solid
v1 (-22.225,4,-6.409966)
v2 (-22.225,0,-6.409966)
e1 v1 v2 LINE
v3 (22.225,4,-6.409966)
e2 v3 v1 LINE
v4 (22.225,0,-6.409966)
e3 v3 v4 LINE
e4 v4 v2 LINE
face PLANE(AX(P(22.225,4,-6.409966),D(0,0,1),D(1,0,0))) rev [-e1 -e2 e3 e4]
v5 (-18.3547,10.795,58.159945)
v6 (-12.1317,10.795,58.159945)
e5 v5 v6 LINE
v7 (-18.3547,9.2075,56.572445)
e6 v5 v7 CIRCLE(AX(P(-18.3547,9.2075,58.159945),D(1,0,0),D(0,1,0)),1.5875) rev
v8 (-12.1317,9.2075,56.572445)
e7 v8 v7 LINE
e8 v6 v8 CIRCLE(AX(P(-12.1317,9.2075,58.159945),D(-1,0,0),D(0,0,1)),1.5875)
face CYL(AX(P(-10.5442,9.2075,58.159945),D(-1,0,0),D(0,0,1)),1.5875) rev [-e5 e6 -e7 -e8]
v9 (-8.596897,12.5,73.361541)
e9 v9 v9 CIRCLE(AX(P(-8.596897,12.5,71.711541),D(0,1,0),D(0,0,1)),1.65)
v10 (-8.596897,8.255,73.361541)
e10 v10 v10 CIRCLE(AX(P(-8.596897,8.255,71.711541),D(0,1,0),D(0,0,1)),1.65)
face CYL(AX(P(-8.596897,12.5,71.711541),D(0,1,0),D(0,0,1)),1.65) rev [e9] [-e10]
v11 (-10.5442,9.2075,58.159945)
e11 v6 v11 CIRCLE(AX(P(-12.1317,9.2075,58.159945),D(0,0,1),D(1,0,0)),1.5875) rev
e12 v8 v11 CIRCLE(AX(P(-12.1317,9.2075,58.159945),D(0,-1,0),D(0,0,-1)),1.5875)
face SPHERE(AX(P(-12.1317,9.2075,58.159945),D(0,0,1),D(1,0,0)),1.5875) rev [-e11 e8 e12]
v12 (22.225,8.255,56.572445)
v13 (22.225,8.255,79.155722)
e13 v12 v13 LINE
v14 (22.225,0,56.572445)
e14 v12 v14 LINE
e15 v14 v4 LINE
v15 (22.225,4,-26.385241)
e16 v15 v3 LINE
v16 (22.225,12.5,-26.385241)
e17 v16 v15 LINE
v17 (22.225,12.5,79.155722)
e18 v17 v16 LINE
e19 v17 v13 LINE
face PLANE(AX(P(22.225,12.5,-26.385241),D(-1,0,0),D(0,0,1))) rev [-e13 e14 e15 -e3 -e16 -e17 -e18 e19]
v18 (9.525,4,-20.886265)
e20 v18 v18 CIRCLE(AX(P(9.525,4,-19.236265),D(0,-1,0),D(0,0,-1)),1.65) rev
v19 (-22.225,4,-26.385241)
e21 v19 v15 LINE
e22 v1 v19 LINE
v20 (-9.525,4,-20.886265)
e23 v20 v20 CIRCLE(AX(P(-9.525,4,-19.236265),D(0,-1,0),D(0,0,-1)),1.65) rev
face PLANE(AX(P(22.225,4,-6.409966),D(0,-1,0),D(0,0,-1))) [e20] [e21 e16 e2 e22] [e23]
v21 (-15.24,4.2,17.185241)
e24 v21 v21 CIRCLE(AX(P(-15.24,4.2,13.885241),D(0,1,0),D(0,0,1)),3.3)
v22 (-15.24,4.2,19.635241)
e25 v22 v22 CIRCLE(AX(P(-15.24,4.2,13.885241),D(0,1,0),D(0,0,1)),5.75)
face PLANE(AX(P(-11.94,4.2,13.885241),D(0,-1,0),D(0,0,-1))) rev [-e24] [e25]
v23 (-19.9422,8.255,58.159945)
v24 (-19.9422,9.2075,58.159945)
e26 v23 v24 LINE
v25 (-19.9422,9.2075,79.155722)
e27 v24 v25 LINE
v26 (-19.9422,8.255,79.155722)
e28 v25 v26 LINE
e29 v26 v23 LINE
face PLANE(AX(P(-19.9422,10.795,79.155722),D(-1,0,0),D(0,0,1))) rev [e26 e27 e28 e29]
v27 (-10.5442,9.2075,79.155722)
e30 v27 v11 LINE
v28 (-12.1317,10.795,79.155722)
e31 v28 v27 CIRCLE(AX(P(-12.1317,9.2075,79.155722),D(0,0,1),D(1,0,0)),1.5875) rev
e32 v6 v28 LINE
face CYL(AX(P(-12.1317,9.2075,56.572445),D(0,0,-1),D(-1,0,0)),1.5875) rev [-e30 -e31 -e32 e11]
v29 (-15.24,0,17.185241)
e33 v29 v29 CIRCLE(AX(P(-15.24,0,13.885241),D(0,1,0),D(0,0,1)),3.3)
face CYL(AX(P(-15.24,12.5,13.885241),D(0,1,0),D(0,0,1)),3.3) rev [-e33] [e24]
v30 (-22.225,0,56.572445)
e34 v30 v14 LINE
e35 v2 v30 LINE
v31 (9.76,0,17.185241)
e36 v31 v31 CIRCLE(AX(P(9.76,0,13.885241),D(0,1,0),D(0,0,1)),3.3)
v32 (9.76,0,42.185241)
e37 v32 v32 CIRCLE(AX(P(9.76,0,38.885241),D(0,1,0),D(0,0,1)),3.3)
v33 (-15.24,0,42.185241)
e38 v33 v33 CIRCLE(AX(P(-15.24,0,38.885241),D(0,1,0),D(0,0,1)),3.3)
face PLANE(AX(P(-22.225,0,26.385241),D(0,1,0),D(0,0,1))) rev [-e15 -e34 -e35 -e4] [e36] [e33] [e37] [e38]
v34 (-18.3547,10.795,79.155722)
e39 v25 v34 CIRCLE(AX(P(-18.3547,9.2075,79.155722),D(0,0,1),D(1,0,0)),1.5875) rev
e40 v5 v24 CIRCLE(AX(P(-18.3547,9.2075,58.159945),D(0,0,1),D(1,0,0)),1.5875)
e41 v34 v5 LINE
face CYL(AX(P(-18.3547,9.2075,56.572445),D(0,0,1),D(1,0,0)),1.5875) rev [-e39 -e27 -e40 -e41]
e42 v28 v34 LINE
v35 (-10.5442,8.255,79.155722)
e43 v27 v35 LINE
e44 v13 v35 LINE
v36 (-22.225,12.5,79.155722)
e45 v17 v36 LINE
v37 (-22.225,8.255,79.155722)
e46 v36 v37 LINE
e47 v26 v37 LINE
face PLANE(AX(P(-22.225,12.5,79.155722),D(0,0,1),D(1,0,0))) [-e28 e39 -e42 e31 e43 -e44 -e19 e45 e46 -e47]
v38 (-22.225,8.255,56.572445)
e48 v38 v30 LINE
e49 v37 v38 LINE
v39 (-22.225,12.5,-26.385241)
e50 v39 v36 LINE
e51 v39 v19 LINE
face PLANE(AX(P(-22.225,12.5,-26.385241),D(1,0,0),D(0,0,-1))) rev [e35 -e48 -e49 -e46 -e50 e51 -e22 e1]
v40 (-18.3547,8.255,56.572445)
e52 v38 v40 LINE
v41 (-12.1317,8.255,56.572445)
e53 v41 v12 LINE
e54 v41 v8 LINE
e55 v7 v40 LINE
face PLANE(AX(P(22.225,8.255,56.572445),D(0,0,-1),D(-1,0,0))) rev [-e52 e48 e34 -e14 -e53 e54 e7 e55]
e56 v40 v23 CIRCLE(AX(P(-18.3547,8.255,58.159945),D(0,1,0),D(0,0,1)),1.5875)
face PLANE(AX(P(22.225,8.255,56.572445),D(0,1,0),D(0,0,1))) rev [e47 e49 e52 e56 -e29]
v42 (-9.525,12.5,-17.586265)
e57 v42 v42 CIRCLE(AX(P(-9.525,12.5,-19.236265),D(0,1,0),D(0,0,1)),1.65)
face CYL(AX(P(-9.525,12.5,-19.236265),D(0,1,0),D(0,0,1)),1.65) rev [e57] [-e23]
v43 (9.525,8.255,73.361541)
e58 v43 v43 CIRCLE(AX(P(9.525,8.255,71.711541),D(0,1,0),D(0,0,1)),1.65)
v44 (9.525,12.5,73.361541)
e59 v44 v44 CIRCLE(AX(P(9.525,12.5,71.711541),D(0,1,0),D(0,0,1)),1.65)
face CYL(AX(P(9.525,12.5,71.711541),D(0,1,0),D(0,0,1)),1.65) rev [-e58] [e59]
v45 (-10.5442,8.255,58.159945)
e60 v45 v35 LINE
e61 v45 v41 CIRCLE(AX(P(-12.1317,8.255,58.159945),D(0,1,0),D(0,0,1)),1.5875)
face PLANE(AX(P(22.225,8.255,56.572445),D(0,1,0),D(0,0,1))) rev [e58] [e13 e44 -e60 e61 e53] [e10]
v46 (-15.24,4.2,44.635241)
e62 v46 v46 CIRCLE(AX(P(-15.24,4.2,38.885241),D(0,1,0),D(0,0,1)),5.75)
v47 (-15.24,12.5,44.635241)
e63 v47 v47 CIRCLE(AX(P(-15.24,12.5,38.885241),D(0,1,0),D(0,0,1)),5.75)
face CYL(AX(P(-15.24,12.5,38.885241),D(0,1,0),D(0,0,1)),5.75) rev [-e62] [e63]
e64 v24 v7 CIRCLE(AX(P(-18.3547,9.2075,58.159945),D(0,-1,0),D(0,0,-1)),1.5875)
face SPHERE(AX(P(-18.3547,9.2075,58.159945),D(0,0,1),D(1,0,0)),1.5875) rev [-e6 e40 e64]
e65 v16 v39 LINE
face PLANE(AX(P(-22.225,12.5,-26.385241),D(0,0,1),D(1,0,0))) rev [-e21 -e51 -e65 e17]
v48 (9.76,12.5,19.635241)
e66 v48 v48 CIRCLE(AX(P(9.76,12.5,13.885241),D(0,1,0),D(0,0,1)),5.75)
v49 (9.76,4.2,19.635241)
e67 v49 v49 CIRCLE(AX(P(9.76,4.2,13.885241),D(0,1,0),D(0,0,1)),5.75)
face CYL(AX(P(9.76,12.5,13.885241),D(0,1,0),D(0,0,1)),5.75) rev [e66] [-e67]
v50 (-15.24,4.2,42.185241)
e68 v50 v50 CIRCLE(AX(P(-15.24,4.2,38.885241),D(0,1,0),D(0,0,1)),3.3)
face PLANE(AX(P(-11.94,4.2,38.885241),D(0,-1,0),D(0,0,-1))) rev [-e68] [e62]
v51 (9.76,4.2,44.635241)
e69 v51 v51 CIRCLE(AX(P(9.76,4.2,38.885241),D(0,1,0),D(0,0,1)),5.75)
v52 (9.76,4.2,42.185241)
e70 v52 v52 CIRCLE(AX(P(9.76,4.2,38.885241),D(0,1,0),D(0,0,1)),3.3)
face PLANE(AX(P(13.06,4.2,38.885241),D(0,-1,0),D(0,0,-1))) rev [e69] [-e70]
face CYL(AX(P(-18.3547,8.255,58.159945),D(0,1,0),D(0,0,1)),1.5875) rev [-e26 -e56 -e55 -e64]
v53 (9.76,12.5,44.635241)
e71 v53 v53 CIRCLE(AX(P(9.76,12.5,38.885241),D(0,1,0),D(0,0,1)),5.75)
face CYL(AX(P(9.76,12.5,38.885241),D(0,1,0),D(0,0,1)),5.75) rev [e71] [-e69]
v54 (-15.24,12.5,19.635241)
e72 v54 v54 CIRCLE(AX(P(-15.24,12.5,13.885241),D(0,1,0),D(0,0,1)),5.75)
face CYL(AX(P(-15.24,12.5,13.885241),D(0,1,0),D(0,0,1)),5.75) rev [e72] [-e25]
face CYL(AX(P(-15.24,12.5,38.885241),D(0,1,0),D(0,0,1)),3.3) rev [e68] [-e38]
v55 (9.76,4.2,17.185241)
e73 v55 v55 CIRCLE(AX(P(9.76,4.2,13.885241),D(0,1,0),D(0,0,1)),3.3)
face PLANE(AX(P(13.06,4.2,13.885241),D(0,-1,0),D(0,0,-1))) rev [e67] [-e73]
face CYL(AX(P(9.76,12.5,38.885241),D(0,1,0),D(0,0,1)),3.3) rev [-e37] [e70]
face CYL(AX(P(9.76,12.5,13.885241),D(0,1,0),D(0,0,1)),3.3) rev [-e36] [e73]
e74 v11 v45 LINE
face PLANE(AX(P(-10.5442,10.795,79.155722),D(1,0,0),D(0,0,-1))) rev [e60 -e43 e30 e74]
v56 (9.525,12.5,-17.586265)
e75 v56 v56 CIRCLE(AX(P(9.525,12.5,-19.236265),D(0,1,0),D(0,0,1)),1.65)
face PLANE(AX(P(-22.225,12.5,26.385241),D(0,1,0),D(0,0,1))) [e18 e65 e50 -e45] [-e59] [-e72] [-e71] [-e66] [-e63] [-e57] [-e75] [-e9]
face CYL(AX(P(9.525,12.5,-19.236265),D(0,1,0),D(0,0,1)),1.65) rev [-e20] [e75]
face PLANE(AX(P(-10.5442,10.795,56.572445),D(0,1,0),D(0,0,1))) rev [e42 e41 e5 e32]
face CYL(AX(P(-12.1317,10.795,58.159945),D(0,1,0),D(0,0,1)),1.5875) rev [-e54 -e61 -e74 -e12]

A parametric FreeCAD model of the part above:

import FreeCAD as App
import Part
import Sketcher
Q = App.Units.Quantity


def edges_at(feature, points):
    """Names of the edges that pass closest to the given points."""
    edges = feature.Shape.Edges
    near = lambda p: min(range(len(edges)), key=lambda i: edges[i].distToShape(Part.Vertex(*p))[0])
    return sorted({f"Edge{near(p) + 1}" for p in points})

doc = App.newDocument("Part")
params = doc.addObject("Spreadsheet::Sheet", "Params")
for row, (alias, value) in enumerate([
    ("sketch1_width", "1.75 in"),
    ("pad1_length", "12.5 mm"),
    ("hole_diameter", "3.3 mm"),
    ("hole2_diameter", "6.6 mm"),
    ("hole2_cbore_diameter", "11.5 mm"),
    ("hole2_cbore_depth", "8.3 mm"),
    ("sketch4_width", "1.75 in"),
    ("pocket1_length", "0.325 in"),
    ("sketch5_width", "1.75 in"),
    ("pocket2_length", "4 mm"),
    ("sketch6_width", "0.37 in"),
    ("pocket3_length", "0.1 in"),
    ("fillet_radius", "0.0625 in"),
    ("hole3_diameter", "3.3 mm"),
], start=1):
    params.set(f"A{row}", alias)
    params.set(f"B{row}", "=" + value)
    params.setAlias(f"B{row}", alias)

body = doc.addObject("PartDesign::Body", "Body")

sketch1 = doc.addObject("Sketcher::SketchObject", "Sketch")
body.addObject(sketch1)
sketch1.AttachmentSupport = (doc.XZ_Plane, [""])
sketch1.MapMode = "FlatFace"
sketch1.addGeometry([
    Part.LineSegment(App.Vector(-22.225, -26.385241, 0), App.Vector(-22.225, 26.385241, 0)),
    Part.LineSegment(App.Vector(-22.225, 26.385241, 0), App.Vector(22.225, 26.385241, 0)),
    Part.LineSegment(App.Vector(22.225, 26.385241, 0), App.Vector(22.225, -26.385241, 0)),
    Part.LineSegment(App.Vector(22.225, -26.385241, 0), App.Vector(-22.225, -26.385241, 0)),
], False)
sketch1.addConstraint([
    Sketcher.Constraint("Coincident", 0, 2, 1, 1),
    Sketcher.Constraint("Coincident", 1, 2, 2, 1),
    Sketcher.Constraint("Coincident", 2, 2, 3, 1),
    Sketcher.Constraint("Coincident", 3, 2, 0, 1),
    Sketcher.Constraint("Vertical", 0),
    Sketcher.Constraint("Horizontal", 1),
    Sketcher.Constraint("Vertical", 2),
    Sketcher.Constraint("Horizontal", 3),
    Sketcher.Constraint("Symmetric", 0, 2, 2, 2, -1, 1),
    Sketcher.Constraint("DistanceX", 1, 1, 1, 2, Q("1.75 in")),
    Sketcher.Constraint("DistanceY", 0, 1, 0, 2, Q("52.770481 mm")),
])
sketch1.setExpression("Constraints[9]", "Params.sketch1_width")
pad1 = doc.addObject("PartDesign::Pad", "Pad")
body.addObject(pad1)
pad1.Profile = sketch1
pad1.setExpression("Length", "Params.pad1_length")
pad1.Reversed = True

sketch2 = doc.addObject("Sketcher::SketchObject", "Sketch001")
body.addObject(sketch2)
sketch2.AttachmentSupport = (doc.XZ_Plane, [""])
sketch2.MapMode = "FlatFace"
sketch2.AttachmentOffset = App.Placement(App.Vector(0, 0, -12.5), App.Rotation())
sketch2.addGeometry([
    Part.Circle(App.Vector(-9.525, -19.236265, 0), App.Vector(0, 0, 1), 1.65),
    Part.Circle(App.Vector(9.525, -19.236265, 0), App.Vector(0, 0, 1), 1.65),
], False)
sketch2.addConstraint([
    Sketcher.Constraint("Equal", 0, 1),
    Sketcher.Constraint("Symmetric", 0, 3, 1, 3, -2),
    Sketcher.Constraint("Diameter", 0, Q("3.3 mm")),
    Sketcher.Constraint("DistanceX", 0, 3, 1, 3, Q("0.75 in")),
    Sketcher.Constraint("DistanceY", 0, 3, -1, 1, Q("19.236265 mm")),
])
doc.recompute()
hole = doc.addObject("PartDesign::Hole", "Hole")
body.addObject(hole)
hole.Profile = sketch2
hole.ThreadType = "None"
hole.setExpression("Diameter", "Params.hole_diameter")
hole.DepthType = "ThroughAll"
hole.Reversed = True

sketch3 = doc.addObject("Sketcher::SketchObject", "Sketch002")
body.addObject(sketch3)
sketch3.AttachmentSupport = (doc.XZ_Plane, [""])
sketch3.MapMode = "FlatFace"
sketch3.AttachmentOffset = App.Placement(App.Vector(0, 0, -12.5), App.Rotation())
sketch3.addGeometry([
    Part.Circle(App.Vector(-15.24, 13.885241, 0), App.Vector(0, 0, 1), 3.3),
    Part.Circle(App.Vector(9.76, 13.885241, 0), App.Vector(0, 0, 1), 3.3),
], False)
sketch3.addConstraint([
    Sketcher.Constraint("Equal", 0, 1),
    Sketcher.Constraint("Horizontal", 0, 3, 1, 3),
    Sketcher.Constraint("DistanceX", 0, 3, -1, 1, Q("0.6 in")),
    Sketcher.Constraint("Diameter", 0, Q("6.6 mm")),
    Sketcher.Constraint("DistanceX", -1, 1, 1, 3, Q("9.76 mm")),
    Sketcher.Constraint("DistanceY", -1, 1, 0, 3, Q("13.885241 mm")),
])
doc.recompute()
hole2 = doc.addObject("PartDesign::Hole", "Hole001")
body.addObject(hole2)
hole2.Profile = sketch3
hole2.ThreadType = "None"
hole2.setExpression("Diameter", "Params.hole2_diameter")
hole2.DepthType = "ThroughAll"
hole2.HoleCutType = "Counterbore"
hole2.setExpression("HoleCutDiameter", "Params.hole2_cbore_diameter")
hole2.setExpression("HoleCutDepth", "Params.hole2_cbore_depth")
hole2.Reversed = True
doc.recompute()

datumplane = doc.addObject("PartDesign::Plane", "DatumPlane")
body.addObject(datumplane)
datumplane.AttachmentSupport = (doc.XY_Plane, [""])
datumplane.MapMode = "FlatFace"
datumplane.AttachmentOffset = App.Placement(App.Vector(0, 0, 26.385241), App.Rotation())
mirrored = doc.addObject("PartDesign::Mirrored", "Mirrored")
body.addObject(mirrored)
mirrored.Originals = [pad1, hole2]
mirrored.MirrorPlane = (datumplane, [""])
body.Tip = mirrored

sketch4 = doc.addObject("Sketcher::SketchObject", "Sketch003")
body.addObject(sketch4)
sketch4.AttachmentSupport = (doc.XZ_Plane, [""])
sketch4.MapMode = "FlatFace"
sketch4.addGeometry([
    Part.LineSegment(App.Vector(-22.225, 79.155722, 0), App.Vector(-22.225, 56.572445, 0)),
    Part.LineSegment(App.Vector(-22.225, 56.572445, 0), App.Vector(22.225, 56.572445, 0)),
    Part.LineSegment(App.Vector(22.225, 56.572445, 0), App.Vector(22.225, 79.155722, 0)),
    Part.LineSegment(App.Vector(22.225, 79.155722, 0), App.Vector(-22.225, 79.155722, 0)),
], False)
sketch4.addConstraint([
    Sketcher.Constraint("Coincident", 0, 2, 1, 1),
    Sketcher.Constraint("Coincident", 1, 2, 2, 1),
    Sketcher.Constraint("Coincident", 2, 2, 3, 1),
    Sketcher.Constraint("Coincident", 3, 2, 0, 1),
    Sketcher.Constraint("Vertical", 0),
    Sketcher.Constraint("Horizontal", 1),
    Sketcher.Constraint("Vertical", 2),
    Sketcher.Constraint("Horizontal", 3),
    Sketcher.Constraint("DistanceX", 1, 1, 1, 2, Q("1.75 in")),
    Sketcher.Constraint("DistanceX", 0, 2, -1, 1, Q("0.875 in")),
    Sketcher.Constraint("DistanceY", 0, 2, 0, 1, Q("22.583277 mm")),
    Sketcher.Constraint("DistanceY", -1, 1, 2, 2, Q("79.155722 mm")),
])
sketch4.setExpression("Constraints[8]", "Params.sketch4_width")
pocket1 = doc.addObject("PartDesign::Pocket", "Pocket")
body.addObject(pocket1)
pocket1.Profile = sketch4
pocket1.setExpression("Length", "Params.pocket1_length")

sketch5 = doc.addObject("Sketcher::SketchObject", "Sketch004")
body.addObject(sketch5)
sketch5.AttachmentSupport = (doc.XZ_Plane, [""])
sketch5.MapMode = "FlatFace"
sketch5.addGeometry([
    Part.LineSegment(App.Vector(-22.225, -6.409966, 0), App.Vector(-22.225, -26.385241, 0)),
    Part.LineSegment(App.Vector(-22.225, -26.385241, 0), App.Vector(22.225, -26.385241, 0)),
    Part.LineSegment(App.Vector(22.225, -26.385241, 0), App.Vector(22.225, -6.409966, 0)),
    Part.LineSegment(App.Vector(22.225, -6.409966, 0), App.Vector(-22.225, -6.409966, 0)),
], False)
sketch5.addConstraint([
    Sketcher.Constraint("Coincident", 0, 2, 1, 1),
    Sketcher.Constraint("Coincident", 1, 2, 2, 1),
    Sketcher.Constraint("Coincident", 2, 2, 3, 1),
    Sketcher.Constraint("Coincident", 3, 2, 0, 1),
    Sketcher.Constraint("Vertical", 0),
    Sketcher.Constraint("Horizontal", 1),
    Sketcher.Constraint("Vertical", 2),
    Sketcher.Constraint("Horizontal", 3),
    Sketcher.Constraint("DistanceX", 1, 1, 1, 2, Q("1.75 in")),
    Sketcher.Constraint("DistanceX", 0, 2, -1, 1, Q("0.875 in")),
    Sketcher.Constraint("DistanceY", 0, 2, 0, 1, Q("19.975275 mm")),
    Sketcher.Constraint("DistanceY", 0, 2, -1, 1, Q("26.385241 mm")),
])
sketch5.setExpression("Constraints[8]", "Params.sketch5_width")
pocket2 = doc.addObject("PartDesign::Pocket", "Pocket001")
body.addObject(pocket2)
pocket2.Profile = sketch5
pocket2.setExpression("Length", "Params.pocket2_length")

sketch6 = doc.addObject("Sketcher::SketchObject", "Sketch005")
body.addObject(sketch6)
sketch6.AttachmentSupport = (doc.XZ_Plane, [""])
sketch6.MapMode = "FlatFace"
sketch6.AttachmentOffset = App.Placement(App.Vector(0, 0, -0.325 * 25.4), App.Rotation())
sketch6.addGeometry([
    Part.LineSegment(App.Vector(-19.9422, 79.155722, 0), App.Vector(-19.9422, 56.572445, 0)),
    Part.LineSegment(App.Vector(-19.9422, 56.572445, 0), App.Vector(-10.5442, 56.572445, 0)),
    Part.LineSegment(App.Vector(-10.5442, 56.572445, 0), App.Vector(-10.5442, 79.155722, 0)),
    Part.LineSegment(App.Vector(-10.5442, 79.155722, 0), App.Vector(-19.9422, 79.155722, 0)),
], False)
sketch6.addConstraint([
    Sketcher.Constraint("Coincident", 0, 2, 1, 1),
    Sketcher.Constraint("Coincident", 1, 2, 2, 1),
    Sketcher.Constraint("Coincident", 2, 2, 3, 1),
    Sketcher.Constraint("Coincident", 3, 2, 0, 1),
    Sketcher.Constraint("Vertical", 0),
    Sketcher.Constraint("Horizontal", 1),
    Sketcher.Constraint("Vertical", 2),
    Sketcher.Constraint("Horizontal", 3),
    Sketcher.Constraint("DistanceX", 1, 1, 1, 2, Q("0.37 in")),
    Sketcher.Constraint("DistanceX", 0, 2, -1, 1, Q("19.9422 mm")),
    Sketcher.Constraint("DistanceY", 0, 2, 0, 1, Q("22.583277 mm")),
    Sketcher.Constraint("DistanceY", -1, 1, 2, 2, Q("79.155722 mm")),
])
sketch6.setExpression("Constraints[8]", "Params.sketch6_width")
pocket3 = doc.addObject("PartDesign::Pocket", "Pocket002")
body.addObject(pocket3)
pocket3.Profile = sketch6
pocket3.setExpression("Length", "Params.pocket3_length")
doc.recompute()

fillet = doc.addObject("PartDesign::Fillet", "Fillet")
body.addObject(fillet)
fillet.Base = (pocket3, edges_at(pocket3, [
    (-10.544, 9.525, 56.572),
    (-19.942, 10.795, 67.864),
    (-19.942, 9.525, 56.572),
    (-10.544, 10.795, 67.864),
    (-15.243, 10.795, 56.572),
]))
fillet.setExpression("Radius", "Params.fillet_radius")

sketch7 = doc.addObject("Sketcher::SketchObject", "Sketch006")
body.addObject(sketch7)
sketch7.AttachmentSupport = (doc.XZ_Plane, [""])
sketch7.MapMode = "FlatFace"
sketch7.AttachmentOffset = App.Placement(App.Vector(0, 0, -12.5), App.Rotation())
sketch7.addGeometry([
    Part.Circle(App.Vector(9.525, 71.711541, 0), App.Vector(0, 0, 1), 1.65),
    Part.Circle(App.Vector(-8.596897, 71.711541, 0), App.Vector(0, 0, 1), 1.65),
], False)
sketch7.addConstraint([
    Sketcher.Constraint("Equal", 0, 1),
    Sketcher.Constraint("Horizontal", 0, 3, 1, 3),
    Sketcher.Constraint("Diameter", 0, Q("3.3 mm")),
    Sketcher.Constraint("DistanceX", -1, 1, 0, 3, Q("0.375 in")),
    Sketcher.Constraint("DistanceY", -1, 1, 0, 3, Q("71.711541 mm")),
    Sketcher.Constraint("DistanceX", 1, 3, -1, 1, Q("8.596897 mm")),
])
doc.recompute()
hole3 = doc.addObject("PartDesign::Hole", "Hole002")
body.addObject(hole3)
hole3.Profile = sketch7
hole3.ThreadType = "None"
hole3.setExpression("Diameter", "Params.hole3_diameter")
hole3.DepthType = "ThroughAll"
hole3.Reversed = True

doc.recompute()
